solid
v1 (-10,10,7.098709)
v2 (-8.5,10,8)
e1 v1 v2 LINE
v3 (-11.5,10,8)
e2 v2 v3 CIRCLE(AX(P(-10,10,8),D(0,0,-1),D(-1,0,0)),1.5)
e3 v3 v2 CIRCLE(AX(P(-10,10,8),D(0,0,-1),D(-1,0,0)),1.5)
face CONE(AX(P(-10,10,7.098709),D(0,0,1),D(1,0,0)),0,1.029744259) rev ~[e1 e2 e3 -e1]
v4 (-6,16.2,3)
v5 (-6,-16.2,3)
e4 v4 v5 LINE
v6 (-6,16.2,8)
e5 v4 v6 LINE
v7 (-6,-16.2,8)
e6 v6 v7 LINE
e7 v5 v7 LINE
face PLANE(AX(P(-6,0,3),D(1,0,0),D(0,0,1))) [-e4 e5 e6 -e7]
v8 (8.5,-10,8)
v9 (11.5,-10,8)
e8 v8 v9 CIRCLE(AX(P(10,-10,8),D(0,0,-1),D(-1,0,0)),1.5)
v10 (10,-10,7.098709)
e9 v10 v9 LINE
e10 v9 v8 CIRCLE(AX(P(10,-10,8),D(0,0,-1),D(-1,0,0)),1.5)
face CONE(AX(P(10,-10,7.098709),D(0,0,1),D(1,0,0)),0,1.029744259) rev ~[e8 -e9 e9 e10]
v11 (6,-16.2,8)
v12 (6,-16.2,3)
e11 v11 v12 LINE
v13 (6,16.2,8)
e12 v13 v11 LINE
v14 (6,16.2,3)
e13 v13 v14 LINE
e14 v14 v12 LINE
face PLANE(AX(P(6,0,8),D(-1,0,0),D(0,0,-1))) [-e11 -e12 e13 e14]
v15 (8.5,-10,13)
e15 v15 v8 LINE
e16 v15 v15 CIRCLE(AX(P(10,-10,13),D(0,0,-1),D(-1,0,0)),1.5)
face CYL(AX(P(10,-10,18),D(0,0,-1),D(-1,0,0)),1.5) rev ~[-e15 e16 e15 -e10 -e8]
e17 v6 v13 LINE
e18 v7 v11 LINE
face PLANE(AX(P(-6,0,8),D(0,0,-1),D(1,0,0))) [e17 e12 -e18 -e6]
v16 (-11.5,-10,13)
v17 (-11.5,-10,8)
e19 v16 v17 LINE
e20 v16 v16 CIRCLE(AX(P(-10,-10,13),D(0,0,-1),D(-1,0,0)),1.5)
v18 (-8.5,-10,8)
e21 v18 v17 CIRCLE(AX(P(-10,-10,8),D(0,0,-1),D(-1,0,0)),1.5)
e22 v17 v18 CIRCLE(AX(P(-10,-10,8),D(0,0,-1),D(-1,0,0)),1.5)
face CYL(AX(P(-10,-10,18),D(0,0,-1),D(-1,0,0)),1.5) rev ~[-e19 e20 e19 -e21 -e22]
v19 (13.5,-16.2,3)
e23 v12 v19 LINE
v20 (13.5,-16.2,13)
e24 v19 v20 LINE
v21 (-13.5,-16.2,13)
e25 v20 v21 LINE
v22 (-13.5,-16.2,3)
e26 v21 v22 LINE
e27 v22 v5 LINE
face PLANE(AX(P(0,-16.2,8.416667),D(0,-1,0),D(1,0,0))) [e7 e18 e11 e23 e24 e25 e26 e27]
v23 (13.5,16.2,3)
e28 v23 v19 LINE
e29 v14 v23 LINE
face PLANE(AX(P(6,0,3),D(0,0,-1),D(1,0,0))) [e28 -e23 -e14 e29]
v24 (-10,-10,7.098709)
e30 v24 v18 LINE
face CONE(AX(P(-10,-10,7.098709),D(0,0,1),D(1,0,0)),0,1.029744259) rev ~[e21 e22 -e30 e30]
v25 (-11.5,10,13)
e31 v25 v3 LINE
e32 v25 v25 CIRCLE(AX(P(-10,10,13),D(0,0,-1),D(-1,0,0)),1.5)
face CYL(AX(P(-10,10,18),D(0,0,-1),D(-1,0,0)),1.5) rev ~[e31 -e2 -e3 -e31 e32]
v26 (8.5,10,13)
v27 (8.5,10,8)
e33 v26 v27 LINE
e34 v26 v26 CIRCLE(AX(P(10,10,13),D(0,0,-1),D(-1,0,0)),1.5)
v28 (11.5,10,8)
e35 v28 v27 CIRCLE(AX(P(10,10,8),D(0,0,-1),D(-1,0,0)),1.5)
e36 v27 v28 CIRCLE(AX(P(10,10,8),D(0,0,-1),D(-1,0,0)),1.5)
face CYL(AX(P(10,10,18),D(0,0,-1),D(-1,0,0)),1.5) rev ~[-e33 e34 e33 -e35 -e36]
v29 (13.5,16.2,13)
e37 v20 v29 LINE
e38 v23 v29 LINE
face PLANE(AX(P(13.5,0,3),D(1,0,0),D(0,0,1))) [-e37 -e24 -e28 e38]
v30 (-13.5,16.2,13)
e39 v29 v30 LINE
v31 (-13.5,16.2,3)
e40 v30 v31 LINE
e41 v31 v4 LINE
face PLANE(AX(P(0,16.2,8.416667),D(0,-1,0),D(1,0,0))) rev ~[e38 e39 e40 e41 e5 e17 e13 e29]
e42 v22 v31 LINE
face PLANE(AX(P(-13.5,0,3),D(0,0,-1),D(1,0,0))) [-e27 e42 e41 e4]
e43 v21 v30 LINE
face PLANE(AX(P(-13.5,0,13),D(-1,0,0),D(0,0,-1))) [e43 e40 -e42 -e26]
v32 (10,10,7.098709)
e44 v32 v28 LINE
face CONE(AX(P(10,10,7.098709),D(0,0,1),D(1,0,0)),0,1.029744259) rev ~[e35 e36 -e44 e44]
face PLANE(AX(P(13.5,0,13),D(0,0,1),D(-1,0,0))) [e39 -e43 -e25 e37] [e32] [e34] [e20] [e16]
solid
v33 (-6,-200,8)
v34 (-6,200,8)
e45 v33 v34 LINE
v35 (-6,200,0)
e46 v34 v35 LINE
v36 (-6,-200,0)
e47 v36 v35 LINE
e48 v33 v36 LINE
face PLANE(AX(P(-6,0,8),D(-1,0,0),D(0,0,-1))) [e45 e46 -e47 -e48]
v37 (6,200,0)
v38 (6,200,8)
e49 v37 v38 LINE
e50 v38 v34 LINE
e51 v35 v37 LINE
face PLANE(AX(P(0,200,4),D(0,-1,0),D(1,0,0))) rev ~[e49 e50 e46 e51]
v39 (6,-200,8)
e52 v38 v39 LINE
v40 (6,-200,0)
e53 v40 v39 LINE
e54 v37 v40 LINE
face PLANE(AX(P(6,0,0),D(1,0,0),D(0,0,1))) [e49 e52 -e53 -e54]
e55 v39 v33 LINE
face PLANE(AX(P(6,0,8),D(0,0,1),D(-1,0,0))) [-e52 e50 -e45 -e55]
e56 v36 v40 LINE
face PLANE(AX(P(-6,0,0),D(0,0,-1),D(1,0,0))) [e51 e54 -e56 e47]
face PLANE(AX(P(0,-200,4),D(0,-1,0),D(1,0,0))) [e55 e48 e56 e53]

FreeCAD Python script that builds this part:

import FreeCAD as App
import Part
import Sketcher
from FreeCAD import Vector
Q = App.Units.Quantity

doc = App.newDocument("Part")
params = doc.addObject("Spreadsheet::Sheet", "Params")
for row, (alias, value) in enumerate([
    ("sketch1_width", "12 mm"),
    ("sketch1_height", "8 mm"),
    ("pad1_length", "400 mm"),
    ("sketch2_width", "12 mm"),
    ("sketch2_width2", "27 mm"),
    ("sketch2_height", "5 mm"),
    ("sketch2_height2", "10 mm"),
    ("pad2_length", "32.4 mm"),
    ("sketch3_diameter", "3 mm"),
    ("hole_diameter", "3 mm"),
    ("hole_depth", "5 mm"),
], start=1):
    params.set(f"A{row}", alias)
    params.set(f"B{row}", "=" + value)
    params.setAlias(f"B{row}", alias)

body = doc.addObject("PartDesign::Body", "Body")

# Sketch on XZ plane
sketch1 = body.newObject("Sketcher::SketchObject", "Sketch")
sketch1.AttachmentSupport = (doc.getObject("XZ_Plane"), [""])
sketch1.MapMode = "FlatFace"
sketch1.addGeometry([
    Part.LineSegment(Vector(-6, 0, 0), Vector(6, 0, 0)),
    Part.LineSegment(Vector(6, 0, 0), Vector(6, 8, 0)),
    Part.LineSegment(Vector(6, 8, 0), Vector(-6, 8, 0)),
    Part.LineSegment(Vector(-6, 8, 0), Vector(-6, 0, 0)),
], False)
sketch1.addConstraint([
    Sketcher.Constraint("Coincident", 0, 2, 1, 1),
    Sketcher.Constraint("Coincident", 1, 2, 2, 1),
    Sketcher.Constraint("Coincident", 2, 2, 3, 1),
    Sketcher.Constraint("Coincident", 3, 2, 0, 1),
    Sketcher.Constraint("Horizontal", 0),
    Sketcher.Constraint("Vertical", 1),
    Sketcher.Constraint("Horizontal", 2),
    Sketcher.Constraint("Vertical", 3),
    Sketcher.Constraint("Symmetric", 0, 2, 3, 2, -1, 1),
    Sketcher.Constraint("DistanceX", 0, 1, 0, 2, Q("12 mm")),
    Sketcher.Constraint("DistanceY", 1, 1, 1, 2, Q("8 mm")),
])
sketch1.setExpression("Constraints[9]", "Params.sketch1_width")
sketch1.setExpression("Constraints[10]", "Params.sketch1_height")
pad1 = body.newObject("PartDesign::Pad", "Pad")
pad1.Profile = sketch1
pad1.setExpression("Length", "Params.pad1_length")
pad1.Midplane = True
body2 = doc.addObject("PartDesign::Body", "Body001")

# Sketch on XZ plane
sketch2 = body2.newObject("Sketcher::SketchObject", "Sketch001")
sketch2.AttachmentSupport = (doc.getObject("XZ_Plane001"), [""])
sketch2.MapMode = "FlatFace"
sketch2.addGeometry([
    Part.LineSegment(Vector(-14, 3, 0), Vector(-6, 3, 0)),  # 0
    Part.LineSegment(Vector(-6, 3, 0), Vector(-6, 8, 0)),  # 1
    Part.LineSegment(Vector(-6, 8, 0), Vector(6, 8, 0)),  # 2
    Part.LineSegment(Vector(6, 8, 0), Vector(6, 3, 0)),  # 3
    Part.LineSegment(Vector(6, 3, 0), Vector(14, 3, 0)),  # 4
    Part.LineSegment(Vector(14, 3, 0), Vector(14, 13, 0)),  # 5
    Part.LineSegment(Vector(14, 13, 0), Vector(-14, 13, 0)),  # 6
    Part.LineSegment(Vector(-14, 13, 0), Vector(-14, 3, 0)),  # 7
], False)
sketch2.addConstraint([
    Sketcher.Constraint("Coincident", 0, 2, 1, 1),
    Sketcher.Constraint("Coincident", 1, 2, 2, 1),
    Sketcher.Constraint("Coincident", 2, 2, 3, 1),
    Sketcher.Constraint("Coincident", 3, 2, 4, 1),
    Sketcher.Constraint("Coincident", 4, 2, 5, 1),
    Sketcher.Constraint("Coincident", 5, 2, 6, 1),
    Sketcher.Constraint("Coincident", 6, 2, 7, 1),
    Sketcher.Constraint("Coincident", 7, 2, 0, 1),
    Sketcher.Constraint("Horizontal", 0),
    Sketcher.Constraint("Vertical", 1),
    Sketcher.Constraint("Horizontal", 2),
    Sketcher.Constraint("Vertical", 3),
    Sketcher.Constraint("Horizontal", 4),
    Sketcher.Constraint("Vertical", 5),
    Sketcher.Constraint("Horizontal", 6),
    Sketcher.Constraint("Vertical", 7),
    Sketcher.Constraint("Symmetric", 0, 2, 3, 2, -2),
    Sketcher.Constraint("Equal", 0, 4),
    Sketcher.Constraint("DistanceX", 2, 1, 2, 2, Q("12 mm")),
    Sketcher.Constraint("DistanceX", 6, 2, 6, 1, Q("27 mm")),
    Sketcher.Constraint("DistanceY", 1, 1, 1, 2, Q("5 mm")),
    Sketcher.Constraint("DistanceY", 5, 1, 5, 2, Q("10 mm")),
    Sketcher.Constraint("DistanceY", -1, 1, 0, 2, Q("3 mm")),
])
sketch2.setExpression("Constraints[18]", "Params.sketch2_width")
sketch2.setExpression("Constraints[19]", "Params.sketch2_width2")
sketch2.setExpression("Constraints[20]", "Params.sketch2_height")
sketch2.setExpression("Constraints[21]", "Params.sketch2_height2")
pad2 = body2.newObject("PartDesign::Pad", "Pad001")
pad2.Profile = sketch2
pad2.setExpression("Length", "Params.pad2_length")
pad2.Midplane = True

# Sketch on XY plane
sketch3 = body2.newObject("Sketcher::SketchObject", "Sketch002")
sketch3.AttachmentSupport = (doc.getObject("XY_Plane001"), [""])
sketch3.MapMode = "FlatFace"
sketch3.AttachmentOffset = App.Placement(Vector(0, 0, 13), App.Rotation())
sketch3.addGeometry([
    Part.Circle(Vector(-10, 10, 0), Vector(0, 0, 1), 1.5),
    Part.Circle(Vector(10, 10, 0), Vector(0, 0, 1), 1.5),
    Part.Circle(Vector(10, -10, 0), Vector(0, 0, 1), 1.5),
    Part.Circle(Vector(-10, -10, 0), Vector(0, 0, 1), 1.5),
], False)
sketch3.addConstraint([
    Sketcher.Constraint("Equal", 0, 1),
    Sketcher.Constraint("Equal", 1, 2),
    Sketcher.Constraint("Equal", 2, 3),
    Sketcher.Constraint("Symmetric", 0, 3, 2, 3, -1, 1),
    Sketcher.Constraint("Symmetric", 1, 3, 3, 3, -1, 1),
    Sketcher.Constraint("Symmetric", 0, 3, 1, 3, -2),
    Sketcher.Constraint("Diameter", 0, Q("3 mm")),
    Sketcher.Constraint("DistanceX", 0, 3, -1, 1, Q("10 mm")),
    Sketcher.Constraint("DistanceY", -1, 1, 0, 3, Q("10 mm")),
])
sketch3.setExpression("Constraints[6]", "Params.sketch3_diameter")
doc.recompute()
hole = body2.newObject("PartDesign::Hole", "Hole")
hole.Profile = sketch3
hole.ThreadType = "None"
hole.setExpression("Diameter", "Params.hole_diameter")
hole.DepthType = "Dimension"
hole.setExpression("Depth", "Params.hole_depth")
hole.DrillPoint = "Angled"
hole.DrillPointAngle = 118

doc.recompute()
